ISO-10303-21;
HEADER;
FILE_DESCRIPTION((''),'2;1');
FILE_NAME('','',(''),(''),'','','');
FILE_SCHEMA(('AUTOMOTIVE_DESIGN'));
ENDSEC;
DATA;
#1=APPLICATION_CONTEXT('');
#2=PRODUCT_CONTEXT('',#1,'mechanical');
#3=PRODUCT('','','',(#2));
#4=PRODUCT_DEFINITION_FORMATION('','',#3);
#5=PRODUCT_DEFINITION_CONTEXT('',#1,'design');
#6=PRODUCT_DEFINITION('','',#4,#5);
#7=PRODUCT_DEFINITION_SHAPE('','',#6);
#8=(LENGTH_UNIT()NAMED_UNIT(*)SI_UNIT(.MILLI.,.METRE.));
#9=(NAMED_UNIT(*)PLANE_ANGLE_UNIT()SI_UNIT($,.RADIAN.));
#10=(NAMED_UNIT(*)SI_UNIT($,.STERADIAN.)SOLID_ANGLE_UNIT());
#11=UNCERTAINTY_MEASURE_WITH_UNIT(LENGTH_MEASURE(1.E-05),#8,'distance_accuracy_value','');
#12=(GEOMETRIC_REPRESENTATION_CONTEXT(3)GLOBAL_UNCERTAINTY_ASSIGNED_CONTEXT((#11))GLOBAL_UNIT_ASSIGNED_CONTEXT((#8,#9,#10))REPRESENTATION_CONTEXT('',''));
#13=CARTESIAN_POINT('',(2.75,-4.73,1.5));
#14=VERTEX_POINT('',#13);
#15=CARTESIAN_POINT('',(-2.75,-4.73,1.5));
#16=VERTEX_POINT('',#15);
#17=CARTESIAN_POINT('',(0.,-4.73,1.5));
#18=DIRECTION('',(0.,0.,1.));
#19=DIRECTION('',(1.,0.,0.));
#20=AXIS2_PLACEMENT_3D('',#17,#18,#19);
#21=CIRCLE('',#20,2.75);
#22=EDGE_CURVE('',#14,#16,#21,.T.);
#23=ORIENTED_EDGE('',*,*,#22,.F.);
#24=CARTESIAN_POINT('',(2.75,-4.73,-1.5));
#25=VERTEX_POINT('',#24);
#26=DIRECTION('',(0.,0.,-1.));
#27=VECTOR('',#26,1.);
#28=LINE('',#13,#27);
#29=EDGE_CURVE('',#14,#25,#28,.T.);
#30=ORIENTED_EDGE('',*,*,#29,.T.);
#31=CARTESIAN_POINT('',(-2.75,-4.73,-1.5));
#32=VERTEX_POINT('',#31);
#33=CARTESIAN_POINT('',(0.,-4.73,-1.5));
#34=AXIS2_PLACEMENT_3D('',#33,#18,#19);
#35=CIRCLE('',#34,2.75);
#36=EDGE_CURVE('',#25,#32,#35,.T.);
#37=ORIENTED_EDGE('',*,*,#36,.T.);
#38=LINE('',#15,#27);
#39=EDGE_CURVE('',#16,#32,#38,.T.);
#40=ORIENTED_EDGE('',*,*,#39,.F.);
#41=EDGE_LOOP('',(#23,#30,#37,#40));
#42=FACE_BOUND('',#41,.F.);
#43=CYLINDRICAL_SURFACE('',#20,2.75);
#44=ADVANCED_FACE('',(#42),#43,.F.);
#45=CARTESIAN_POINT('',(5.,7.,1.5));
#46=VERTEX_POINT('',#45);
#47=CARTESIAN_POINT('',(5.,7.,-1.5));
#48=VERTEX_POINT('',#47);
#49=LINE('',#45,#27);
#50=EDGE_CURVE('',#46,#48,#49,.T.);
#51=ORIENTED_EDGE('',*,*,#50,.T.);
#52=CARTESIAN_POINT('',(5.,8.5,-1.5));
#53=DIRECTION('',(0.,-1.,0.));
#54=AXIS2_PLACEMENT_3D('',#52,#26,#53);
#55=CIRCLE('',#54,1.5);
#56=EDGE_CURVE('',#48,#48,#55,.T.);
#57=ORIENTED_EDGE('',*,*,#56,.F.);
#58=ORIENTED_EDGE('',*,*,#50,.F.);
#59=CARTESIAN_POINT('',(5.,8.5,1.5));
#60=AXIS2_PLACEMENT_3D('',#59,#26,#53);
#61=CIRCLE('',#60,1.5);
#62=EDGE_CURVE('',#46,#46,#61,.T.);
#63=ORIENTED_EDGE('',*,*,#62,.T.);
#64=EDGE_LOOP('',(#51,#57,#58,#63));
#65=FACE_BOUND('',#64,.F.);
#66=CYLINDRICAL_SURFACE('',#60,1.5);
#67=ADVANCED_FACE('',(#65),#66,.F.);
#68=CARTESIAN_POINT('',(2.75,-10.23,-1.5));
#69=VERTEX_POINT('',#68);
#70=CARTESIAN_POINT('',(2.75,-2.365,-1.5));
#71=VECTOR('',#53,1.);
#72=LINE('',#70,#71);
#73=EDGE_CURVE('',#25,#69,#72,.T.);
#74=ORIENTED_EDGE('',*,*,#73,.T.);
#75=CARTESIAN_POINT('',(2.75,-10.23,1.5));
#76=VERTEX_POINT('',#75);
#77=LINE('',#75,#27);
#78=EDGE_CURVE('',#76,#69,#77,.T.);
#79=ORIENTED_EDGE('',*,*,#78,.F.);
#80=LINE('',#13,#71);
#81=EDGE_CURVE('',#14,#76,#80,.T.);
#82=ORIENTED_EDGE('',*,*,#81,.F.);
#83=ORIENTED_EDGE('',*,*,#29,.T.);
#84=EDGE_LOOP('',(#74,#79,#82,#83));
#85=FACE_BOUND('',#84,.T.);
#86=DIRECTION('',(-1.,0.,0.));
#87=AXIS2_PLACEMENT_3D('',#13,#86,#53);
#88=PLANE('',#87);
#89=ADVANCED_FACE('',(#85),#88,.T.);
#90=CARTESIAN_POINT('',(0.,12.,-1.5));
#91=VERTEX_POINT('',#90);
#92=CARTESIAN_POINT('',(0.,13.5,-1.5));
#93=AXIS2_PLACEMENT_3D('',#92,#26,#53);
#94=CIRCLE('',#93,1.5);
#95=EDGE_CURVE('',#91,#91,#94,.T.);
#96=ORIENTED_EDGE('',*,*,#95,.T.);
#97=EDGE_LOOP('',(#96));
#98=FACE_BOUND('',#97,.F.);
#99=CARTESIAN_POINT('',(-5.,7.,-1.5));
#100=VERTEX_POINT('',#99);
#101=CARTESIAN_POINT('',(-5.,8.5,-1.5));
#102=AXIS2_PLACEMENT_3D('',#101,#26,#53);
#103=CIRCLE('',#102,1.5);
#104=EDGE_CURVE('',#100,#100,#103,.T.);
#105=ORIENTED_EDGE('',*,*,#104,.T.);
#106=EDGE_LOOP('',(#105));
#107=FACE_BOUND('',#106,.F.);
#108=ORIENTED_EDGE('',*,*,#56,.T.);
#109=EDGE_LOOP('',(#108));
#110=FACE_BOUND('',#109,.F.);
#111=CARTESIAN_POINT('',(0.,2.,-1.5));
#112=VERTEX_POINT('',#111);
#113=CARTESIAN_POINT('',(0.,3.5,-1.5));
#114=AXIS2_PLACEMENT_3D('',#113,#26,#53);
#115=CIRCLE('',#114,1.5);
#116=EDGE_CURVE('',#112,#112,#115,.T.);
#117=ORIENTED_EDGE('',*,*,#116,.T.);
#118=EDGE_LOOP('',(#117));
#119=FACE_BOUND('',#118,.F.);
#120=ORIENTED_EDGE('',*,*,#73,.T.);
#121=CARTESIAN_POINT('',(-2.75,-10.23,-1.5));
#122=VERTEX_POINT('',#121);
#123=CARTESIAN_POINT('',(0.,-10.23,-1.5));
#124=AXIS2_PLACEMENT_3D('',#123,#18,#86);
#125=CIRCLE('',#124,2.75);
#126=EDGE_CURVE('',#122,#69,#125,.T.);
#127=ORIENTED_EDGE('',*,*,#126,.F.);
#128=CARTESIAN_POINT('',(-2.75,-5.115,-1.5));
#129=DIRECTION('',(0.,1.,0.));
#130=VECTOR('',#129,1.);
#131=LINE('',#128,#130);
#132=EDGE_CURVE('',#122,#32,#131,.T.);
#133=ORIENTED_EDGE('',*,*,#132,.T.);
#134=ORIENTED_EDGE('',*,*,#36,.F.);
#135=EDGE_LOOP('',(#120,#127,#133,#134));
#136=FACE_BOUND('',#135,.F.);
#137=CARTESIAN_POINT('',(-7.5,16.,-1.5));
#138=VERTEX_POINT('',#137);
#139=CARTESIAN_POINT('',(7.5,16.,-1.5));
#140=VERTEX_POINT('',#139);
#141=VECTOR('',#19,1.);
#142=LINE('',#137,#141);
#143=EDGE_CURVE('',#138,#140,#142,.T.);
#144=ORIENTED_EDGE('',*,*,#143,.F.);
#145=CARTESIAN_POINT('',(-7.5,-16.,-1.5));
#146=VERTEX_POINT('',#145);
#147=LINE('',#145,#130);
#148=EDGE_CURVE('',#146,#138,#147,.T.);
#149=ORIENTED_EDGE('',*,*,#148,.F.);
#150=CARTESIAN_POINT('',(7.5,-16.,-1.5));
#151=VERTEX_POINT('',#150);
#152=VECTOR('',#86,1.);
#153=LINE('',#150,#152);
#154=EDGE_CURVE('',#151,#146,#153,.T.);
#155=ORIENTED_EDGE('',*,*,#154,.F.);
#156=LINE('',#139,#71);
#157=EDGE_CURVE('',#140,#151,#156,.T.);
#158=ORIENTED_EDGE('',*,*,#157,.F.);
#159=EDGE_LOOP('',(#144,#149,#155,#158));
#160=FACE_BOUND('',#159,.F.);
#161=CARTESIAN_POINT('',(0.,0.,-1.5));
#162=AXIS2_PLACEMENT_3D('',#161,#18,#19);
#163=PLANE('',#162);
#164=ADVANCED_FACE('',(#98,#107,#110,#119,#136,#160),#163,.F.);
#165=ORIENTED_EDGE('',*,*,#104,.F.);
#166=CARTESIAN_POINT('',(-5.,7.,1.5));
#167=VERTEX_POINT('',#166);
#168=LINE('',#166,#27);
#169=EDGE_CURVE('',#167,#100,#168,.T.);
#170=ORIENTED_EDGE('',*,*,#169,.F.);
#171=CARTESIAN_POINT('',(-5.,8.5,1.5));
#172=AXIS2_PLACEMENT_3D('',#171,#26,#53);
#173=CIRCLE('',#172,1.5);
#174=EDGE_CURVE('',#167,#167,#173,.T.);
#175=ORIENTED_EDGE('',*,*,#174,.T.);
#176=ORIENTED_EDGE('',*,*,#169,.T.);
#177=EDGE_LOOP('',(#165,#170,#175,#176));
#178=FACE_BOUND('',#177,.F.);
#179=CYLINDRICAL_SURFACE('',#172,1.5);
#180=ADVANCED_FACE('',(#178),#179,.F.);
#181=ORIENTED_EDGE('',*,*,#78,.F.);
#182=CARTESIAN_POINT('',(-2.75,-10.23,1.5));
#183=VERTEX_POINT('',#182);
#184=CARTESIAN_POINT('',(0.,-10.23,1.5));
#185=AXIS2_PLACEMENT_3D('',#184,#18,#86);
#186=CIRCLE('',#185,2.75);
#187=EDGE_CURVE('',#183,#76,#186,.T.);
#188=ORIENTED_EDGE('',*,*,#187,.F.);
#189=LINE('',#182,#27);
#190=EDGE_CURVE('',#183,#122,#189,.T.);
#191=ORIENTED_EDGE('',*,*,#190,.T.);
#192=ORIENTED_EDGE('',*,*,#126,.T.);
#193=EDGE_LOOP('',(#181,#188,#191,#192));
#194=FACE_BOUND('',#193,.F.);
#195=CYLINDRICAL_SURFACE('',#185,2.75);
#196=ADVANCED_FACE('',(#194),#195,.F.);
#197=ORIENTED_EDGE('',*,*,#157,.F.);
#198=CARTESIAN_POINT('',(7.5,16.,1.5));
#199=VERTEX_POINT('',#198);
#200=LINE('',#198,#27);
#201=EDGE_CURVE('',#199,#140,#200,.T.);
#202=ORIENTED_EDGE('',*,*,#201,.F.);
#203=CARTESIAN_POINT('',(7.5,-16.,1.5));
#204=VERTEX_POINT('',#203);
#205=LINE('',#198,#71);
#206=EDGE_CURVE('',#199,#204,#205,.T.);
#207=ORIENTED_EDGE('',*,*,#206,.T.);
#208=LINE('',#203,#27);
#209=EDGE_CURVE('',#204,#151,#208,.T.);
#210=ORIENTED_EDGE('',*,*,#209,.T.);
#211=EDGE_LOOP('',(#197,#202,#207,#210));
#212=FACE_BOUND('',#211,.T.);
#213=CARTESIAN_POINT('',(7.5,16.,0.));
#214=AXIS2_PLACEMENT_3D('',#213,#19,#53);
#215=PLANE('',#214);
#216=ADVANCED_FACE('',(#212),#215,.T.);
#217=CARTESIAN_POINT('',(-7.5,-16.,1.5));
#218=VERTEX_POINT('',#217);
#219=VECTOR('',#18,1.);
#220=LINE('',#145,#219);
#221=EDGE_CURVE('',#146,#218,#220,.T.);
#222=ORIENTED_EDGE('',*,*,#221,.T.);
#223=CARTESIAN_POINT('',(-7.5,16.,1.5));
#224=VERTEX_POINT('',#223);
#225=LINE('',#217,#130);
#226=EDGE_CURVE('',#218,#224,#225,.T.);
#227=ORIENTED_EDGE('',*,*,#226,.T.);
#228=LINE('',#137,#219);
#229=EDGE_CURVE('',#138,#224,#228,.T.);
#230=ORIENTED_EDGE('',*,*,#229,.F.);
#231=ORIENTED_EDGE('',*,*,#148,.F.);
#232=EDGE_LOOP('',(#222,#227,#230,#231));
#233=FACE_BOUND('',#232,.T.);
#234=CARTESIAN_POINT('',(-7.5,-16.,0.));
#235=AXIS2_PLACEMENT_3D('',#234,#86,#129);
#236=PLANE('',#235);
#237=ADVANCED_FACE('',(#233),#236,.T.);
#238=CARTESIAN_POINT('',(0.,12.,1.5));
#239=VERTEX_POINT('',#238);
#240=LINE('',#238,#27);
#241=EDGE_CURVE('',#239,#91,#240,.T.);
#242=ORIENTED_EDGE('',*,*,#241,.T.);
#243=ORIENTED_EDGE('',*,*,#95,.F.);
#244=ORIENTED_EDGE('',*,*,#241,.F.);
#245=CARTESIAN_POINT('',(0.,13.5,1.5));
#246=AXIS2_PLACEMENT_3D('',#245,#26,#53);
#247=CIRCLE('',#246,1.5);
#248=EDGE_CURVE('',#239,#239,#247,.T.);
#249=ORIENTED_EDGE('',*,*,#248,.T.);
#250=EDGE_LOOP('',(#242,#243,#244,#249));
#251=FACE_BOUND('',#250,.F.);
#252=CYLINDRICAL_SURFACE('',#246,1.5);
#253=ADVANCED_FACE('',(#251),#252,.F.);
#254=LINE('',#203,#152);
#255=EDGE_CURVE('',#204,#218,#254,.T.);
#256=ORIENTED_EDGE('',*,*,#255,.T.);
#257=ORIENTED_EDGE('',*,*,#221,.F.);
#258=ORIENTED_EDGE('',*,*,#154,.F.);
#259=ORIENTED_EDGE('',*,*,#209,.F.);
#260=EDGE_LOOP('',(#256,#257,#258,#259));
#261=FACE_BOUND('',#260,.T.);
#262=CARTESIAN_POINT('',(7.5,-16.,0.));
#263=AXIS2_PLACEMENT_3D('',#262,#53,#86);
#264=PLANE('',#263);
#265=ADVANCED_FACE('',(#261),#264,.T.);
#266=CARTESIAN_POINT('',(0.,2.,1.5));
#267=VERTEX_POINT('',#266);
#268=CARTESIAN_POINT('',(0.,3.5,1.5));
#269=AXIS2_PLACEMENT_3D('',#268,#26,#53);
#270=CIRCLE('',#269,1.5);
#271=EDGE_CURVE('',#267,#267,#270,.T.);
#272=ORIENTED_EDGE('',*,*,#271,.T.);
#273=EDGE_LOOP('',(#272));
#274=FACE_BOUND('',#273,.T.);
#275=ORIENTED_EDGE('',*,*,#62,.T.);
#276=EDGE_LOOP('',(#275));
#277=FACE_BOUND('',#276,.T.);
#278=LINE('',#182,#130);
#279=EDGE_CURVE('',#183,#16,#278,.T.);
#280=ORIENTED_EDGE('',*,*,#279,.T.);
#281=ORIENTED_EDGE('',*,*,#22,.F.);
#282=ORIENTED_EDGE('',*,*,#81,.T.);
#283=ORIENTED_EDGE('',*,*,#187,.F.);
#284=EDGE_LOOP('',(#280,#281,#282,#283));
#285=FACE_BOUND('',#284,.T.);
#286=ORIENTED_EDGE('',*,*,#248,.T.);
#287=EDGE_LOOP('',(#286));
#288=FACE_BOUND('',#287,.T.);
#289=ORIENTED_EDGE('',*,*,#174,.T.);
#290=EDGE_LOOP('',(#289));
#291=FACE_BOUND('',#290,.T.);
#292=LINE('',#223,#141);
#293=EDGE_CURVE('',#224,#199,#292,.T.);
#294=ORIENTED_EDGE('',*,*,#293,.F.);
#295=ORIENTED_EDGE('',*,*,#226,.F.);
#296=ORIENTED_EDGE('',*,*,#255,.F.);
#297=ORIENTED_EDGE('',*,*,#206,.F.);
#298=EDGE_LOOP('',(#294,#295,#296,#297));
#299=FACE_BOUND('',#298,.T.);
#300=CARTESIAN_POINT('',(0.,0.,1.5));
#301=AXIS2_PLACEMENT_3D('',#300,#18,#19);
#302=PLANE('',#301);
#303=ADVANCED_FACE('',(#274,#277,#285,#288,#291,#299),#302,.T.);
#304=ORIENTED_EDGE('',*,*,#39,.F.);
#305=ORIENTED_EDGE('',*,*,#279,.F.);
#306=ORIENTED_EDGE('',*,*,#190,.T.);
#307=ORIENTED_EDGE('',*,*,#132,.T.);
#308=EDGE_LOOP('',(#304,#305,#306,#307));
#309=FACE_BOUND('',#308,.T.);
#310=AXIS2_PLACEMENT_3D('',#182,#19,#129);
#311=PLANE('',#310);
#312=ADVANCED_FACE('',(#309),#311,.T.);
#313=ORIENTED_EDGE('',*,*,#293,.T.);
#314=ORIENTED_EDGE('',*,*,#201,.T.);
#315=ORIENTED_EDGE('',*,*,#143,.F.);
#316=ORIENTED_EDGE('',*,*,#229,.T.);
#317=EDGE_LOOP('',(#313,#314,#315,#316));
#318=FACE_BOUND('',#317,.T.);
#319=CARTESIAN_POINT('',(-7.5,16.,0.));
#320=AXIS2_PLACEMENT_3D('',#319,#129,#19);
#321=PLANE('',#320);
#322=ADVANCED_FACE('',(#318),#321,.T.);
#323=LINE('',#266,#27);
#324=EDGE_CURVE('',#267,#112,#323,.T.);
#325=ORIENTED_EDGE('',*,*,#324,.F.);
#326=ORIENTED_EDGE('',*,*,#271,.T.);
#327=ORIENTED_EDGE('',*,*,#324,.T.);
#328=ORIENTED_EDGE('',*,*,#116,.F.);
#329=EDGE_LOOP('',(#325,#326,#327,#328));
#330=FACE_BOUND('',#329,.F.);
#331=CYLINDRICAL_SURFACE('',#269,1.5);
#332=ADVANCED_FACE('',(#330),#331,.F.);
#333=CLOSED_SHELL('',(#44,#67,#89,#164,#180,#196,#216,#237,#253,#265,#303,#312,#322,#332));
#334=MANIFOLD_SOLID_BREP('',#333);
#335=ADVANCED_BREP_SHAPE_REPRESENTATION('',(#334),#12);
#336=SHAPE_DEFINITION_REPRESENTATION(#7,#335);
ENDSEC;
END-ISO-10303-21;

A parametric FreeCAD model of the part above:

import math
import FreeCAD as App
import Part
import Sketcher

V = App.Vector

doc = App.newDocument("Part")
params = doc.addObject("Spreadsheet::Sheet", "Params")
for row, (alias, value) in enumerate([
    ("sketch1_width", "15 mm"),
    ("sketch1_height", "32 mm"),
    ("pad1_length", "3 mm"),
    ("sketch2_diameter", "3 mm"),
    ("hole_diameter", "3 mm"),
    ("sketch3_radius", "2.75 mm"),
    ("sketch3_height", "5.5 mm"),
], start=1):
    params.set(f"A{row}", alias)
    params.set(f"B{row}", "=" + value)
    params.setAlias(f"B{row}", alias)

body = doc.addObject("PartDesign::Body", "Body")

# Sketch on XY plane
sketch1 = body.newObject("Sketcher::SketchObject", "Sketch")
sketch1.AttachmentSupport = (doc.getObject("XY_Plane"), [""])
sketch1.MapMode = "FlatFace"
sketch1.addGeometry([
    Part.LineSegment(V(8, 16, 0), V(-8, 16, 0)),
    Part.LineSegment(V(-8, 16, 0), V(-8, -16, 0)),
    Part.LineSegment(V(-8, -16, 0), V(8, -16, 0)),
    Part.LineSegment(V(8, -16, 0), V(8, 16, 0)),
], False)
sketch1.addConstraint([
    Sketcher.Constraint("Coincident", 0, 2, 1, 1),
    Sketcher.Constraint("Coincident", 1, 2, 2, 1),
    Sketcher.Constraint("Coincident", 2, 2, 3, 1),
    Sketcher.Constraint("Coincident", 3, 2, 0, 1),
    Sketcher.Constraint("Horizontal", 0),
    Sketcher.Constraint("Vertical", 1),
    Sketcher.Constraint("Horizontal", 2),
    Sketcher.Constraint("Vertical", 3),
    Sketcher.Constraint("Symmetric", 0, 2, 2, 2, -1, 1),
    Sketcher.Constraint("DistanceX", 0, 2, 0, 1, 15.0),
    Sketcher.Constraint("DistanceY", 1, 2, 1, 1, 32.0),
])
sketch1.setExpression("Constraints[9]", "Params.sketch1_width")
sketch1.setExpression("Constraints[10]", "Params.sketch1_height")
pad1 = body.newObject("PartDesign::Pad", "Pad")
pad1.Profile = sketch1
pad1.setExpression("Length", "Params.pad1_length")
pad1.Midplane = True

# Sketch on XY plane
sketch2 = body.newObject("Sketcher::SketchObject", "Sketch001")
sketch2.AttachmentSupport = (doc.getObject("XY_Plane"), [""])
sketch2.MapMode = "FlatFace"
sketch2.AttachmentOffset = App.Placement(V(0, 0, 1.5), App.Rotation())
sketch2.addGeometry([
    Part.Circle(V(0, 13.5, 0), V(0, 0, 1), 1.5),
    Part.Circle(V(0, 3.5, 0), V(0, 0, 1), 1.5),
    Part.Circle(V(-5, 8.5, 0), V(0, 0, 1), 1.5),
    Part.Circle(V(5, 8.5, 0), V(0, 0, 1), 1.5),
], False)
sketch2.addConstraint([
    Sketcher.Constraint("Equal", 0, 1),
    Sketcher.Constraint("Equal", 1, 2),
    Sketcher.Constraint("Equal", 2, 3),
    Sketcher.Constraint("Symmetric", 2, 3, 3, 3, -2),
    Sketcher.Constraint("PointOnObject", 0, 3, -2),
    Sketcher.Constraint("PointOnObject", 1, 3, -2),
    Sketcher.Constraint("Diameter", 0, 3.0),
    Sketcher.Constraint("DistanceX", 2, 3, -1, 1, 5.0),
    Sketcher.Constraint("DistanceY", 1, 3, 0, 3, 10.0),
    Sketcher.Constraint("DistanceY", 2, 3, 0, 3, 5.0),
    Sketcher.Constraint("DistanceY", -1, 1, 0, 3, 13.5),
])
sketch2.setExpression("Constraints[6]", "Params.sketch2_diameter")
doc.recompute()
hole = body.newObject("PartDesign::Hole", "Hole")
hole.Profile = sketch2
hole.ThreadType = "None"
hole.setExpression("Diameter", "Params.hole_diameter")
hole.DepthType = "ThroughAll"

# Sketch on XY plane
sketch3 = body.newObject("Sketcher::SketchObject", "Sketch002")
sketch3.AttachmentSupport = (doc.getObject("XY_Plane"), [""])
sketch3.MapMode = "FlatFace"
sketch3.AttachmentOffset = App.Placement(V(0, 0, 1.5), App.Rotation())
sketch3.addGeometry([
    Part.ArcOfCircle(Part.Circle(V(0, -4.7, 0), V(0, 0, 1), 2.8), math.radians(0), math.radians(180)),
    Part.LineSegment(V(-2.8, -4.7, 0), V(-2.8, -10.2, 0)),
    Part.ArcOfCircle(Part.Circle(V(0, -10.2, 0), V(0, 0, 1), 2.8), math.radians(180), math.radians(360)),
    Part.LineSegment(V(2.8, -10.2, 0), V(2.8, -4.7, 0)),
], False)
sketch3.addConstraint([
    Sketcher.Constraint("Tangent", 0, 2, 1, 1),
    Sketcher.Constraint("Tangent", 1, 2, 2, 1),
    Sketcher.Constraint("Tangent", 2, 2, 3, 1),
    Sketcher.Constraint("Tangent", 3, 2, 0, 1),
    Sketcher.Constraint("Vertical", 1),
    Sketcher.Constraint("Vertical", 3),
    Sketcher.Constraint("PointOnObject", 0, 3, -2),
    Sketcher.Constraint("Radius", 0, 2.75),
    Sketcher.Constraint("DistanceY", 1, 2, 1, 1, 5.5),
    Sketcher.Constraint("DistanceY", 0, 3, -1, 1, 4.73),
])
sketch3.setExpression("Constraints[7]", "Params.sketch3_radius")
sketch3.setExpression("Constraints[8]", "Params.sketch3_height")
pocket1 = body.newObject("PartDesign::Pocket", "Pocket")
pocket1.Profile = sketch3
pocket1.Type = "ThroughAll"

doc.recompute()
